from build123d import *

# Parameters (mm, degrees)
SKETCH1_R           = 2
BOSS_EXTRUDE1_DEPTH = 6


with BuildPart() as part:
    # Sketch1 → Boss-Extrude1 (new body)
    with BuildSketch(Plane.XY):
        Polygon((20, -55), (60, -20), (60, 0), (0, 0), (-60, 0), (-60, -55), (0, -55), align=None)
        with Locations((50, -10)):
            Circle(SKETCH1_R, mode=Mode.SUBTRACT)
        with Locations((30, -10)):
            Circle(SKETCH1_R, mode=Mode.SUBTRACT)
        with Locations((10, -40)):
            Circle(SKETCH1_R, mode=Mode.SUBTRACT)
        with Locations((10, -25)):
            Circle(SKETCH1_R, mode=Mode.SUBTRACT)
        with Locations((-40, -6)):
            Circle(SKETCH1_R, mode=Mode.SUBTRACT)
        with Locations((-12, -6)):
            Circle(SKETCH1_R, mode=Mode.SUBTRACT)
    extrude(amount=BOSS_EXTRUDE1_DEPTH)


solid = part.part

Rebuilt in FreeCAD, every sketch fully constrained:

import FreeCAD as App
import Part
import Sketcher


def add_polygon(sketch, points):
    """Adds a closed chain of lines whose ends are joined by coincident constraints."""
    first, n = sketch.GeometryCount, len(points)
    for a, b in zip(points, points[1:] + points[:1]):
        sketch.addGeometry(Part.LineSegment(App.Vector(*a, 0), App.Vector(*b, 0)), False)
    for i in range(n):
        sketch.addConstraint(Sketcher.Constraint("Coincident", first + i, 2, first + (i + 1) % n, 1))

doc = App.newDocument("Part")
params = doc.addObject("Spreadsheet::Sheet", "Params")
for row, (alias, value) in enumerate([
    ("sketch1_diameter", "4 mm"),
    ("sketch1_width", "120 mm"),
    ("sketch1_width2", "80 mm"),
    ("sketch1_height", "20 mm"),
    ("sketch1_height2", "55 mm"),
    ("pad1_length", "6 mm"),
], start=1):
    params.set(f"A{row}", alias)
    params.set(f"B{row}", "=" + value)
    params.setAlias(f"B{row}", alias)

body = doc.addObject("PartDesign::Body", "Body")

sketch1 = body.newObject("Sketcher::SketchObject", "Sketch")
sketch1.AttachmentSupport = (doc.getObject("XY_Plane"), [""])
sketch1.MapMode = "FlatFace"
add_polygon(sketch1, [(20, -55), (60, -20), (60, 0), (-60, 0), (-60, -55)])
sketch1.addGeometry(Part.Circle(App.Vector(10, -40, 0), App.Vector(0, 0, 1), 2), False)
sketch1.addGeometry(Part.Circle(App.Vector(10, -25, 0), App.Vector(0, 0, 1), 2), False)
sketch1.addGeometry(Part.Circle(App.Vector(-40, -6, 0), App.Vector(0, 0, 1), 2), False)
sketch1.addGeometry(Part.Circle(App.Vector(-12, -6, 0), App.Vector(0, 0, 1), 2), False)
sketch1.addGeometry(Part.Circle(App.Vector(30, -10, 0), App.Vector(0, 0, 1), 2), False)
sketch1.addGeometry(Part.Circle(App.Vector(50, -10, 0), App.Vector(0, 0, 1), 2), False)
sketch1.addConstraint([
    Sketcher.Constraint("Vertical", 1),
    Sketcher.Constraint("Horizontal", 2),
    Sketcher.Constraint("Vertical", 3),
    Sketcher.Constraint("Horizontal", 4),
    Sketcher.Constraint("Equal", 5, 6),
    Sketcher.Constraint("Equal", 6, 7),
    Sketcher.Constraint("Equal", 7, 8),
    Sketcher.Constraint("Equal", 8, 9),
    Sketcher.Constraint("Equal", 9, 10),
    Sketcher.Constraint("Symmetric", 1, 2, 2, 2, -1, 1),
    Sketcher.Constraint("Horizontal", 7, 3, 8, 3),
    Sketcher.Constraint("Horizontal", 9, 3, 10, 3),
    Sketcher.Constraint("Vertical", 5, 3, 6, 3),
    Sketcher.Constraint("Diameter", 5, 4.0),
    Sketcher.Constraint("DistanceX", 2, 2, 2, 1, 120.0),
    Sketcher.Constraint("DistanceX", 4, 1, 4, 2, 80.0),
    Sketcher.Constraint("DistanceY", 1, 1, 1, 2, 20.0),
    Sketcher.Constraint("DistanceY", 3, 2, 3, 1, 55.0),
    Sketcher.Constraint("DistanceX", -1, 1, 5, 3, 10.0),
    Sketcher.Constraint("DistanceY", 5, 3, -1, 1, 40.0),
    Sketcher.Constraint("DistanceY", 6, 3, -1, 1, 25.0),
    Sketcher.Constraint("DistanceX", 7, 3, -1, 1, 40.0),
    Sketcher.Constraint("DistanceY", 7, 3, -1, 1, 6.0),
    Sketcher.Constraint("DistanceX", 8, 3, -1, 1, 12.0),
    Sketcher.Constraint("DistanceX", -1, 1, 9, 3, 30.0),
    Sketcher.Constraint("DistanceY", 9, 3, -1, 1, 10.0),
    Sketcher.Constraint("DistanceX", -1, 1, 10, 3, 50.0),
])
sketch1.setExpression("Constraints[18]", "Params.sketch1_diameter")
sketch1.setExpression("Constraints[19]", "Params.sketch1_width")
sketch1.setExpression("Constraints[20]", "Params.sketch1_width2")
sketch1.setExpression("Constraints[21]", "Params.sketch1_height")
sketch1.setExpression("Constraints[22]", "Params.sketch1_height2")
pad1 = body.newObject("PartDesign::Pad", "Pad")
pad1.Profile = sketch1
pad1.setExpression("Length", "Params.pad1_length")

doc.recompute()
